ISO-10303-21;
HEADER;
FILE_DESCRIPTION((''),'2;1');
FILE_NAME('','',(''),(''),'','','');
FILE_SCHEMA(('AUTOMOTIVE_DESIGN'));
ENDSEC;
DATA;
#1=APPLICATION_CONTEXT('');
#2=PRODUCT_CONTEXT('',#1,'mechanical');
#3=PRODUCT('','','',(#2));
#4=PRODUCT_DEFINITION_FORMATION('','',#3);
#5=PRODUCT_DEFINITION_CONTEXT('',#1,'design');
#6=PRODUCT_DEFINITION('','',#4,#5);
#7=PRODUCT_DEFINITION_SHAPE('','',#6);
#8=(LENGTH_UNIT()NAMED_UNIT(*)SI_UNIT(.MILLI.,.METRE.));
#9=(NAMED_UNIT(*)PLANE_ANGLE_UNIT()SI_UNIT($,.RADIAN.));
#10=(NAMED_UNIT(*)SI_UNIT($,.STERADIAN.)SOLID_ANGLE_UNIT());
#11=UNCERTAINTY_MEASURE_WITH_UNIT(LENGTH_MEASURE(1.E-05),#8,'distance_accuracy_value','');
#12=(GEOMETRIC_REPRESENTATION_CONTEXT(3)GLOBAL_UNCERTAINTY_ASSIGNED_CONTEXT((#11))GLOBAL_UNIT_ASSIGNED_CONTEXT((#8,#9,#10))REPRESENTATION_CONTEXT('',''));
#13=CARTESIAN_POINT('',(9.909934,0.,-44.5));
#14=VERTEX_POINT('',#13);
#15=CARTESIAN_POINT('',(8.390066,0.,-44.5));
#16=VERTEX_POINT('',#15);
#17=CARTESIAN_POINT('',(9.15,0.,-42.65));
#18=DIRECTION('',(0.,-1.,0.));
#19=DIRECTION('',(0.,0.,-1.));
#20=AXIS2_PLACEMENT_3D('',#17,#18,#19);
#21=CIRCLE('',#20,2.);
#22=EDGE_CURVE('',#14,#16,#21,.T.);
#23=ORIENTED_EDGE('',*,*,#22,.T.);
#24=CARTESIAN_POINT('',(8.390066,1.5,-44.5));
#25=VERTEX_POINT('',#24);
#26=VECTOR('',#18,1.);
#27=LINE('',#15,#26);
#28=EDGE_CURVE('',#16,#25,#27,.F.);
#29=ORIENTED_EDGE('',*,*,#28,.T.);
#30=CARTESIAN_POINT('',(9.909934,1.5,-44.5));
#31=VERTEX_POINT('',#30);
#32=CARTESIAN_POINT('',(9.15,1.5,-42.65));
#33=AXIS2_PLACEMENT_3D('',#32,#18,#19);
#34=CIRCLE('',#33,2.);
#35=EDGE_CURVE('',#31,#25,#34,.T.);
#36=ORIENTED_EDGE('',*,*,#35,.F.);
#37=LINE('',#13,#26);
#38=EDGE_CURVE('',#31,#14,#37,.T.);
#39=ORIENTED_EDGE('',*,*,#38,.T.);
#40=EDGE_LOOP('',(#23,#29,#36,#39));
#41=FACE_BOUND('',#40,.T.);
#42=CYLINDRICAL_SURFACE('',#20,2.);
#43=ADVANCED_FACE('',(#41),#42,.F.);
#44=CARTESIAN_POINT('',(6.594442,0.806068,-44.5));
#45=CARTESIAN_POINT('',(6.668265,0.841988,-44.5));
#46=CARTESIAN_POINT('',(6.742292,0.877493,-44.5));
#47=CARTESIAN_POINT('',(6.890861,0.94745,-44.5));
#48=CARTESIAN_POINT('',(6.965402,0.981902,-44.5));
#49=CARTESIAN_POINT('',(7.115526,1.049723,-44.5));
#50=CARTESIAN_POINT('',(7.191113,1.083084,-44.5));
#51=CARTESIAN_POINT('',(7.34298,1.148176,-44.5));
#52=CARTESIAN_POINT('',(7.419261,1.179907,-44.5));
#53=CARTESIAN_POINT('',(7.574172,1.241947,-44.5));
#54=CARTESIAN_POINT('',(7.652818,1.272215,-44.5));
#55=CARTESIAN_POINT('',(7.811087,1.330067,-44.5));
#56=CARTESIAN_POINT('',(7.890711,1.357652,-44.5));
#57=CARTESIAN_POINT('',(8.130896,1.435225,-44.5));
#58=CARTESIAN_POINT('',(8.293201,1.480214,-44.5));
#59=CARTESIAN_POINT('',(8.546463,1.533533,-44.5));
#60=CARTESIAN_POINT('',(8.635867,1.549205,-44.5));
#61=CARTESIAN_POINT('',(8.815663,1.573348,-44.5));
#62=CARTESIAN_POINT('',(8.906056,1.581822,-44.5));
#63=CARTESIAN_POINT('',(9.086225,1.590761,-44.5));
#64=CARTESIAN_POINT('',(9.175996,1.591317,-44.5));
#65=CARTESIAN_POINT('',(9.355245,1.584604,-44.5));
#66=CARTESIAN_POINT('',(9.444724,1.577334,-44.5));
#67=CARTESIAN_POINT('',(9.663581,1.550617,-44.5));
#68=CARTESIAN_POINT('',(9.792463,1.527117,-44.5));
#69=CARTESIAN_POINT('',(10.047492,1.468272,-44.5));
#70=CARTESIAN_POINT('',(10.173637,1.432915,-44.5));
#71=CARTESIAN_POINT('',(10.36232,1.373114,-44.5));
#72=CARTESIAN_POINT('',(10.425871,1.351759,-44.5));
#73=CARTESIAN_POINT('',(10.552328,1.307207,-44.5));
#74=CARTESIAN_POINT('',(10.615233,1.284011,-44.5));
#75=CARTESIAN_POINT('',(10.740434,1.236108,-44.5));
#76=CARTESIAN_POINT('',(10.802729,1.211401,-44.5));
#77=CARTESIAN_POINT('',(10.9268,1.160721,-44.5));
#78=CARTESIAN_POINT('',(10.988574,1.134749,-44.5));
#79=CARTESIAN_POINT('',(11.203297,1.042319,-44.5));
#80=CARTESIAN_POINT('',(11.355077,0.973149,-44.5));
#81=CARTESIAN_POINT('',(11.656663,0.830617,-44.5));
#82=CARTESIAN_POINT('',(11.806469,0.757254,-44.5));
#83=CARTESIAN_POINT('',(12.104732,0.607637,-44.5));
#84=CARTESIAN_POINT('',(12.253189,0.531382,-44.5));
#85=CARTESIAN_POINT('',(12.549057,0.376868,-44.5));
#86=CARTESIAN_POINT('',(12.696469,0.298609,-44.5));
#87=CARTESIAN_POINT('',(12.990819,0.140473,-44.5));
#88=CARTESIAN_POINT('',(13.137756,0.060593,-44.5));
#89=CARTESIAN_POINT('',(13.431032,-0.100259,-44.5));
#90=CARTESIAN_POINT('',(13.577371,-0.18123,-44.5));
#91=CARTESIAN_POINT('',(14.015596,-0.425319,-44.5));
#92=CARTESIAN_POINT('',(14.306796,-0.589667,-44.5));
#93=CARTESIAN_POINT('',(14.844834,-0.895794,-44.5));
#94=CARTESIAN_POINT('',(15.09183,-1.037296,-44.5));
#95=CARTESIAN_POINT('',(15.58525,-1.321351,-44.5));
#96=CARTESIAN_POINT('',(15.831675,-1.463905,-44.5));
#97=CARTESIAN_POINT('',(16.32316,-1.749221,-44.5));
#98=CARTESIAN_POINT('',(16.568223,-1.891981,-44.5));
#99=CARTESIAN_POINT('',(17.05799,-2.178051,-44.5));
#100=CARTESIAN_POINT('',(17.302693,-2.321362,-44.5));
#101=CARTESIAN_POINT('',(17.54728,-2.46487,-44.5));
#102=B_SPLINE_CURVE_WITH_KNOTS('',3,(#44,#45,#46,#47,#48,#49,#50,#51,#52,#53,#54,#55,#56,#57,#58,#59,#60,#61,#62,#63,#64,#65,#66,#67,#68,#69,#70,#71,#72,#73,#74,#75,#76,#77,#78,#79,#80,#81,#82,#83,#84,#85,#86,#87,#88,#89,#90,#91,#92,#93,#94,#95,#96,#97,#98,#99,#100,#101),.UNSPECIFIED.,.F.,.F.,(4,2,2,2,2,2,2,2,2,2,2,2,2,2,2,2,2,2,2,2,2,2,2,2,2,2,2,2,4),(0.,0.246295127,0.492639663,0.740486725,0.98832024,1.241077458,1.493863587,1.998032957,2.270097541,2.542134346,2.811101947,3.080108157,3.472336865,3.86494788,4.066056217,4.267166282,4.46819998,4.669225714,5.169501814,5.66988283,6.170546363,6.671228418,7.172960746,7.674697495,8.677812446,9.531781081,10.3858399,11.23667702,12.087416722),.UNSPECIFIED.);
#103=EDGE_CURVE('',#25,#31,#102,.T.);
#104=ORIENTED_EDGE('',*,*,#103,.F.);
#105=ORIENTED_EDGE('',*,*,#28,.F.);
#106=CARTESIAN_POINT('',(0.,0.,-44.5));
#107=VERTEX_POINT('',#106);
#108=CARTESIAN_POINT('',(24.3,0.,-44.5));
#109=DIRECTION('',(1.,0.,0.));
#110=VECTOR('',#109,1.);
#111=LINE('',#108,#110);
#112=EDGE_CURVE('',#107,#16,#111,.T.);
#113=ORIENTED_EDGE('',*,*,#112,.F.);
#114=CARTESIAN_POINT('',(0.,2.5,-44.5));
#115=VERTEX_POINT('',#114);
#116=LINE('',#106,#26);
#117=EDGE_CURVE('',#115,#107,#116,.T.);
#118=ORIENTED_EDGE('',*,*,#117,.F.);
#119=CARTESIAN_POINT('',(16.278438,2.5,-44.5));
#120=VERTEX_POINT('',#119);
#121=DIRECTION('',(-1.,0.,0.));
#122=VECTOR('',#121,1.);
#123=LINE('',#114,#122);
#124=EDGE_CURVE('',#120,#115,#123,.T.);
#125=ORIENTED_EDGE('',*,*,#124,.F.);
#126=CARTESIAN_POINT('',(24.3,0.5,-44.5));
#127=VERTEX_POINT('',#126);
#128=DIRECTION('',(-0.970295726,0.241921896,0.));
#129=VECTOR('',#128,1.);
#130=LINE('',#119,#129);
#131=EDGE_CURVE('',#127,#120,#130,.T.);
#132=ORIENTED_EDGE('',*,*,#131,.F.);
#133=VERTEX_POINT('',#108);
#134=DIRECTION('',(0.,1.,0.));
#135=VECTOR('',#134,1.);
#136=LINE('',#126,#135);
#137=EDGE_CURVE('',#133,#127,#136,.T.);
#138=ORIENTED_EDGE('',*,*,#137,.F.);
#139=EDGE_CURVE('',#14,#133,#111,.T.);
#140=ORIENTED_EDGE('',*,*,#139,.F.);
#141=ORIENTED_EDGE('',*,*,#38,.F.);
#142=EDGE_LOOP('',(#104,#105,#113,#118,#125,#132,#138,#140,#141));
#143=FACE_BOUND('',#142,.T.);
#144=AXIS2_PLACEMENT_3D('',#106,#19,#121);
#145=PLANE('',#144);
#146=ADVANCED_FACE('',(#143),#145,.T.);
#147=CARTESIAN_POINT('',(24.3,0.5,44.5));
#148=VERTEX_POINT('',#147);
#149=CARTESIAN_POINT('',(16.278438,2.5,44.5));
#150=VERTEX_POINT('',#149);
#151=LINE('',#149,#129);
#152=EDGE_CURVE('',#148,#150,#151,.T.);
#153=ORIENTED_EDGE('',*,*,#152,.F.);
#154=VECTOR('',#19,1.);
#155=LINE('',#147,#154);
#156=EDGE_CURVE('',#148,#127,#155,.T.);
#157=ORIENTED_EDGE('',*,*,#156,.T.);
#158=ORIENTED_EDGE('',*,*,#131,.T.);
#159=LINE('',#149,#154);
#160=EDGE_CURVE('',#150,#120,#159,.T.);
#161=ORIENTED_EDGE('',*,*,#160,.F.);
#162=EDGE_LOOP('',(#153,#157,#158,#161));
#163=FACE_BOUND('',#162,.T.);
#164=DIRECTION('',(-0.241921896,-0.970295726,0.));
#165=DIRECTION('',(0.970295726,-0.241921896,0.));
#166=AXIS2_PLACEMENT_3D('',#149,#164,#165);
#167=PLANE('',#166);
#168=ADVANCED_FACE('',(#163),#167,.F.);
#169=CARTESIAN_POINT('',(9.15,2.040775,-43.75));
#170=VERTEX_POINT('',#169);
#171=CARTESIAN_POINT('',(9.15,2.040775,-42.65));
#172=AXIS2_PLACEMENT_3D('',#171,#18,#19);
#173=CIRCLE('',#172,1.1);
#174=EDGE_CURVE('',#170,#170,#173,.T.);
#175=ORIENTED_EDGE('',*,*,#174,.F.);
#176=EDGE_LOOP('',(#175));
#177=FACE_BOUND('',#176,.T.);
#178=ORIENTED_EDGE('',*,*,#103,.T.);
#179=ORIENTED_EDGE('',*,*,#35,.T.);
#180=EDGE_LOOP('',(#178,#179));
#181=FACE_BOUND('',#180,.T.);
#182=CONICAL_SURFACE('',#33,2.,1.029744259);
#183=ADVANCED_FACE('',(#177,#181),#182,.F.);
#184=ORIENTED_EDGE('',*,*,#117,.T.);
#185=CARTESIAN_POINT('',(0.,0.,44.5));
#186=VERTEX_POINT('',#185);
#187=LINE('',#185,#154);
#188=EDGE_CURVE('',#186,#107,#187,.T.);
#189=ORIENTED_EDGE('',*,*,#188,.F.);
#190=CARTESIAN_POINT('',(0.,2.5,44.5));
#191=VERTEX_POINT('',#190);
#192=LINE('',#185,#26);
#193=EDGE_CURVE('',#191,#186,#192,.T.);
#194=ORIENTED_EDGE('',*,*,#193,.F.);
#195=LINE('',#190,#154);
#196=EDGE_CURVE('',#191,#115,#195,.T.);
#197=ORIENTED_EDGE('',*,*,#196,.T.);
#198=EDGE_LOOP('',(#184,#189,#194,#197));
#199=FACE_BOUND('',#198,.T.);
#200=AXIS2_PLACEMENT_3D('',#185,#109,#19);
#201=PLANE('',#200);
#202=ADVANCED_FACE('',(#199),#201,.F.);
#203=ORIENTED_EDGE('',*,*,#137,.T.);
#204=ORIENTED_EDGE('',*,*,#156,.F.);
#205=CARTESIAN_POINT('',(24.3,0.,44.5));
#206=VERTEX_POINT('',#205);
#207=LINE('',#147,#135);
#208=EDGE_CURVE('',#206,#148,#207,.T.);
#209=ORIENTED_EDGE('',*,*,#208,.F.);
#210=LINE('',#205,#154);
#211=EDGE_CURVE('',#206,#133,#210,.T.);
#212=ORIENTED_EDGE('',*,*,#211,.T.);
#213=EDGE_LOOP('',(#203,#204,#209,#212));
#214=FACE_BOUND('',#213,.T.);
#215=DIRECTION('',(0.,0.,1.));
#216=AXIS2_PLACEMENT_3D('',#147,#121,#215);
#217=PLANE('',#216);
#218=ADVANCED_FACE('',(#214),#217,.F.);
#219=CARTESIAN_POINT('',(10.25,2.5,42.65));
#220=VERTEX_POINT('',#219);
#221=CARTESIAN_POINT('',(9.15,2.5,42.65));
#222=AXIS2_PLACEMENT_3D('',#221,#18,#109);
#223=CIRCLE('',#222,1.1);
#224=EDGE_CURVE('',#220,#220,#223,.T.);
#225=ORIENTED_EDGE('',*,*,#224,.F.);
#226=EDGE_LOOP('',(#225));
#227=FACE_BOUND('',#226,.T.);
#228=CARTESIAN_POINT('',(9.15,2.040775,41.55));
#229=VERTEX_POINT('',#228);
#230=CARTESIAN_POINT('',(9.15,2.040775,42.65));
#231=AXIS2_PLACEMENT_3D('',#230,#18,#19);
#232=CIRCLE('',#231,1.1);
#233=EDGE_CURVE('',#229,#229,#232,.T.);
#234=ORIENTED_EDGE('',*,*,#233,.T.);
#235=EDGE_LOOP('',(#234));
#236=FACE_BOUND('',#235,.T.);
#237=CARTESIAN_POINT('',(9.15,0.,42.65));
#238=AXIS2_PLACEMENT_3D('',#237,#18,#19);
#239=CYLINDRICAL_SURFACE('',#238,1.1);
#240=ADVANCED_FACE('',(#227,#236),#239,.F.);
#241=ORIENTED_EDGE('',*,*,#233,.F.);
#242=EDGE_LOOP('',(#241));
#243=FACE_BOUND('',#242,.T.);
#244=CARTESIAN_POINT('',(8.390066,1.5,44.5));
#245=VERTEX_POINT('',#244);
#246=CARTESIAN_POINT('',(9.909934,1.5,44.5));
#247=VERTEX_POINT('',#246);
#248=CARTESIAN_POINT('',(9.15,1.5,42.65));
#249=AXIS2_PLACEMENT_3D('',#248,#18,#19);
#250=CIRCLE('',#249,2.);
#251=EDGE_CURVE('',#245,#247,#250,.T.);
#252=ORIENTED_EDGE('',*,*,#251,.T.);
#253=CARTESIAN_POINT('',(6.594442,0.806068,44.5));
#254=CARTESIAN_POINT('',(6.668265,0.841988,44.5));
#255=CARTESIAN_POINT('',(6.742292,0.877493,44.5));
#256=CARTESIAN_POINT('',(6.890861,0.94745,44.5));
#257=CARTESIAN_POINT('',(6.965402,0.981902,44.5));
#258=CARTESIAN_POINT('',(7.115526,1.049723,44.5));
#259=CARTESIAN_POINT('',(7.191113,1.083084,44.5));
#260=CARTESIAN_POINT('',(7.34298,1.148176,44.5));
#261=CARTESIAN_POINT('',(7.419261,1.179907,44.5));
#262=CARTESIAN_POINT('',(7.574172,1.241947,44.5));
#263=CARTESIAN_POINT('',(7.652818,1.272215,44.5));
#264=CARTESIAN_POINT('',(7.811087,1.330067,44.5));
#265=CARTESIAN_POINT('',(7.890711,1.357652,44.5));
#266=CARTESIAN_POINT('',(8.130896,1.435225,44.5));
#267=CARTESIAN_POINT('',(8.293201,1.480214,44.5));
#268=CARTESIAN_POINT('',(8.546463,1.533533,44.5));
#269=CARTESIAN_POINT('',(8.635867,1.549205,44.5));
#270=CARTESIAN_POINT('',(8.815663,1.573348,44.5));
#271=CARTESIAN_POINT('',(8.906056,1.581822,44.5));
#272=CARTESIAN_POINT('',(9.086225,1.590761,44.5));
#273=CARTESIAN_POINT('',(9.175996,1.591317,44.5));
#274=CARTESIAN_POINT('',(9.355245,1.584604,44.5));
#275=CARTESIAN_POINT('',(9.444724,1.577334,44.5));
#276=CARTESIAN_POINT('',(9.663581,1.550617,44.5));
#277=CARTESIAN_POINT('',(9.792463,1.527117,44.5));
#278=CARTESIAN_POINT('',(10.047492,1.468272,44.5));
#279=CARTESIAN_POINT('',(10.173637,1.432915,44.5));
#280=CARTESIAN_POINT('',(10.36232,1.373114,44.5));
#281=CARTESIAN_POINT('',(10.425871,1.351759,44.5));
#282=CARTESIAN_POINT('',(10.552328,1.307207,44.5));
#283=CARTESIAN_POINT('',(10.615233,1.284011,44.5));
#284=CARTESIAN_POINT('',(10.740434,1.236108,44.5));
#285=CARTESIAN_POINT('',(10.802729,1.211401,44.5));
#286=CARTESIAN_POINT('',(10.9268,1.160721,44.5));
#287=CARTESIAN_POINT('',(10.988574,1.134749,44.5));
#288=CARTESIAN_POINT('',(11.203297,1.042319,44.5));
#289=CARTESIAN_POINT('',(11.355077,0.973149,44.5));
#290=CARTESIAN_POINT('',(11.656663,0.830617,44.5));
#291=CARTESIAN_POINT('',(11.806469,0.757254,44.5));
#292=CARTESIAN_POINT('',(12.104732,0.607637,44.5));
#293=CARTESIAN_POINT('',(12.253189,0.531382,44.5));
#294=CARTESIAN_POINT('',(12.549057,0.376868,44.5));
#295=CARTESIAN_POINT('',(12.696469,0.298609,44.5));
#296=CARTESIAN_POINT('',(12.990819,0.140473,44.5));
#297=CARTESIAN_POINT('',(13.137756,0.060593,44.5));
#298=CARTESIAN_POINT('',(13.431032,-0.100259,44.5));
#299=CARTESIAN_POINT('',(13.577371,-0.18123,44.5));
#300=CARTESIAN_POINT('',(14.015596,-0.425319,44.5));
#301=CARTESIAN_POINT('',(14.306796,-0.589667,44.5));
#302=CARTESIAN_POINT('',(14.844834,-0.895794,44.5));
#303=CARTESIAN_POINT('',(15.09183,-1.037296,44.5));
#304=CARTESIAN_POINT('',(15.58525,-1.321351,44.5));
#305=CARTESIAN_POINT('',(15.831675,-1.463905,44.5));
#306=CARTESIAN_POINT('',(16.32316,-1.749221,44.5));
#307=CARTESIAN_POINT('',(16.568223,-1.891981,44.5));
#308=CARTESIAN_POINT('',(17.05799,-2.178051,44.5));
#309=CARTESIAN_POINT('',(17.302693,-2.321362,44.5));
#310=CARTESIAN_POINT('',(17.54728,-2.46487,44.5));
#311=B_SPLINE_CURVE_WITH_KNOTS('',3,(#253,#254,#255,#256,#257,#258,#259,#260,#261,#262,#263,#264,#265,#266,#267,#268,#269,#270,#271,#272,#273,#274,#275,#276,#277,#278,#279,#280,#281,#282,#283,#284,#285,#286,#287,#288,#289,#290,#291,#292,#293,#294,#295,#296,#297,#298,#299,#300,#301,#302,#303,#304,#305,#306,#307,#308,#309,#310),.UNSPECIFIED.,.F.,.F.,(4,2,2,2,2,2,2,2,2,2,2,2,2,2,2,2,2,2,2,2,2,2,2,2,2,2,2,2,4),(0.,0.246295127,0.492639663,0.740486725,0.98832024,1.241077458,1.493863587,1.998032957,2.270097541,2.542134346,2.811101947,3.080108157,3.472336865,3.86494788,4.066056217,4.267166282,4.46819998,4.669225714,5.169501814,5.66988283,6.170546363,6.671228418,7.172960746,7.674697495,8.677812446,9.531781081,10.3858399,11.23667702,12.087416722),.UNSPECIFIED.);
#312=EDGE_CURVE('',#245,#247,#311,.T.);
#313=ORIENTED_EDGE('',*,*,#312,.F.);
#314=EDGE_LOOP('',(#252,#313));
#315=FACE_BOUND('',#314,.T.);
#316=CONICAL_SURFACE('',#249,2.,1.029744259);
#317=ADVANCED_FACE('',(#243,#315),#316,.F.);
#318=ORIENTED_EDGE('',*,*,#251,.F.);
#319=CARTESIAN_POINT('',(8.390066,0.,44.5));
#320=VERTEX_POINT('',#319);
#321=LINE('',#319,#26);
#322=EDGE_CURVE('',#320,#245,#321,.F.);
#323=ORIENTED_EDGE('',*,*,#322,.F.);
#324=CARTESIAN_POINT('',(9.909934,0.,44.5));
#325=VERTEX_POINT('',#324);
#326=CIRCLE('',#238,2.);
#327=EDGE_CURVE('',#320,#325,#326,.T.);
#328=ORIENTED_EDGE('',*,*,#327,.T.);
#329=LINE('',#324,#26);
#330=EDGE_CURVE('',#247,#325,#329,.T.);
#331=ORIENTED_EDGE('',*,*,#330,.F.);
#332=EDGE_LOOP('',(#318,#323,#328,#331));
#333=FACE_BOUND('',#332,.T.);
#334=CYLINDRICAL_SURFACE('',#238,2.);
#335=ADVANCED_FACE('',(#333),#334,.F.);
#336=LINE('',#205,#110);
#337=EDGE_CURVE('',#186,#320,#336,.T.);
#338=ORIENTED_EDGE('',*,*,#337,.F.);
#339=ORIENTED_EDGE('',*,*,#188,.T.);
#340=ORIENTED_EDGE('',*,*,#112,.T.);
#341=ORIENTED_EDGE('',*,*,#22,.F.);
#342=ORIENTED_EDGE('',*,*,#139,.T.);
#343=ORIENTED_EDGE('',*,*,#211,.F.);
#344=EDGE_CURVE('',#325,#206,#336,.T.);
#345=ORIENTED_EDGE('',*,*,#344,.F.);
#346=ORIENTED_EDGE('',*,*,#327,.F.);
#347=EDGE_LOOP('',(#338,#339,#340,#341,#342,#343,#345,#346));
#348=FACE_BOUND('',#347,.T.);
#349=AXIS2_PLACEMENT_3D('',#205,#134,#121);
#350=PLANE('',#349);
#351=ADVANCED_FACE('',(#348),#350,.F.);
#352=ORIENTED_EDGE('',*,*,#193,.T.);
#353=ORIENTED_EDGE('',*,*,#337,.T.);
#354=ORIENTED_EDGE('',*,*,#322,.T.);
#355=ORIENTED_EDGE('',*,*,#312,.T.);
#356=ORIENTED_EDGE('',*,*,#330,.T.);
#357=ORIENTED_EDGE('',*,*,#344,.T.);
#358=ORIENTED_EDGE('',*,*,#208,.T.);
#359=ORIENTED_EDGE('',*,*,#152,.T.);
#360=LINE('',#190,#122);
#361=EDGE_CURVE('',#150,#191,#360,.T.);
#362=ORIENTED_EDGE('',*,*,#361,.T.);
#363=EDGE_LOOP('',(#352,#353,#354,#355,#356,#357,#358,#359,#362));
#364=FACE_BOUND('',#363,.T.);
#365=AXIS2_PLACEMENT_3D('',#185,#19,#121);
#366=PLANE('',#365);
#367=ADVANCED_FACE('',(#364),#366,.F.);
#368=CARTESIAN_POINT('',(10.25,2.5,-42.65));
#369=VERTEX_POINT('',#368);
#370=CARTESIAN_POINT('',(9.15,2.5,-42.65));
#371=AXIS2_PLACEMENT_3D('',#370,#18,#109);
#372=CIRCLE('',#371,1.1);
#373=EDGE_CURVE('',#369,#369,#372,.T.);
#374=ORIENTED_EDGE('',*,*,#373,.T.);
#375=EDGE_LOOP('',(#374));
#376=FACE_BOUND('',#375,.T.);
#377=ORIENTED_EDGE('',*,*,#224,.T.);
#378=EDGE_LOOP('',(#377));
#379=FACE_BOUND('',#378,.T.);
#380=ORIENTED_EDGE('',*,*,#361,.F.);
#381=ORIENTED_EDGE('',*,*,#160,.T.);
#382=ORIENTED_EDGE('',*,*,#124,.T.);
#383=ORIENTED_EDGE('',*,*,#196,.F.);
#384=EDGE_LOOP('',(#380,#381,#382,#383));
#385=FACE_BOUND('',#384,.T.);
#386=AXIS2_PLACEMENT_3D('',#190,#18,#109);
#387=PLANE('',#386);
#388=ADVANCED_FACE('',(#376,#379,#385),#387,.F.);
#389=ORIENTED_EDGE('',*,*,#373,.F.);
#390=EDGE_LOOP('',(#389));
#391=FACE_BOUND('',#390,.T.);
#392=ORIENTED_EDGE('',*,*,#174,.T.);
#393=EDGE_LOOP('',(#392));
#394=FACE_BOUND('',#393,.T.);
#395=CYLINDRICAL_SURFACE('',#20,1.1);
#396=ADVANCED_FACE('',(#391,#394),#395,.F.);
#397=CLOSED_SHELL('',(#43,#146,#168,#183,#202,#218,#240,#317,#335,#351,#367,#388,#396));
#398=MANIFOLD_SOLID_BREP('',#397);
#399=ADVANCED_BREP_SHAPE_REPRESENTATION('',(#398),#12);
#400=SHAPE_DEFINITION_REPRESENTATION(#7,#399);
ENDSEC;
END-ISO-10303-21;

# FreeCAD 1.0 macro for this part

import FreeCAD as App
import Part
import Sketcher
Q = App.Units.Quantity


def add_polygon(sketch, points):
    """Adds a closed chain of lines whose ends are joined by coincident constraints."""
    first, n = sketch.GeometryCount, len(points)
    for a, b in zip(points, points[1:] + points[:1]):
        sketch.addGeometry(Part.LineSegment(App.Vector(*a, 0), App.Vector(*b, 0)), False)
    for i in range(n):
        sketch.addConstraint(Sketcher.Constraint("Coincident", first + i, 2, first + (i + 1) % n, 1))

doc = App.newDocument("Part")
body = doc.addObject("PartDesign::Body", "Body")

# Sketch on XY plane
sketch1 = body.newObject("Sketcher::SketchObject", "Sketch")
sketch1.AttachmentSupport = (doc.getObject("XY_Plane"), [""])
sketch1.MapMode = "FlatFace"
add_polygon(sketch1, [(0, 2.5), (0, 0), (24.3, 0), (24.3, 0.5), (16.3, 2.5)])  # lines 0-4
sketch1.addConstraint([
    Sketcher.Constraint("Vertical", 0),
    Sketcher.Constraint("Horizontal", 1),
    Sketcher.Constraint("Vertical", 2),
    Sketcher.Constraint("Horizontal", 4),
    Sketcher.Constraint("Coincident", 0, 2, -1, 1),
    Sketcher.Constraint("Angle", 3, Q("166 deg")),
    Sketcher.Constraint("DistanceX", 1, 1, 1, 2, Q("24.3 mm")),
    Sketcher.Constraint("DistanceY", 0, 2, 0, 1, Q("2.5 mm")),
    Sketcher.Constraint("DistanceY", 2, 1, 2, 2, Q("0.5 mm")),
])
pad1 = body.newObject("PartDesign::Pad", "Pad")
pad1.Profile = sketch1
pad1.Length = 89
pad1.Midplane = True

# Sketch on YZ plane
sketch2 = body.newObject("Sketcher::SketchObject", "Sketch001")
sketch2.AttachmentSupport = (doc.getObject("YZ_Plane"), [""])
sketch2.MapMode = "FlatFace"
sketch2.AttachmentOffset = App.Placement(App.Vector(0, 0, 9.15), App.Rotation())
add_polygon(sketch2, [(2.5, 42.65), (0, 42.65), (0, 40.65), (1.5, 40.65), (2.04, 41.55), (2.5, 41.55)])  # lines 0-5
sketch2.addGeometry(Part.LineSegment(App.Vector(0, 42.65, 0), App.Vector(2.5, 42.65, 0)), True)  # axis
sketch2.addConstraint([
    Sketcher.Constraint("Horizontal", 0),
    Sketcher.Constraint("Vertical", 1),
    Sketcher.Constraint("Horizontal", 2),
    Sketcher.Constraint("Horizontal", 4),
    Sketcher.Constraint("Vertical", 5),
    Sketcher.Constraint("Horizontal", 6),
    Sketcher.Constraint("Coincident", 6, 1, 0, 2),
    Sketcher.Constraint("PointOnObject", 0, 2, -2),
    Sketcher.Constraint("Vertical", 4, 2, 6, 2),
    Sketcher.Constraint("DistanceY", 1, 2, 1, 1, Q("2 mm")),
    Sketcher.Constraint("Angle", 3, Q("59 deg")),
    Sketcher.Constraint("DistanceX", 0, 2, 0, 1, Q("2.5 mm")),
    Sketcher.Constraint("DistanceX", 2, 1, 2, 2, Q("1.5 mm")),
    Sketcher.Constraint("DistanceY", 5, 1, 5, 2, Q("1.1 mm")),
    Sketcher.Constraint("DistanceY", -1, 1, 0, 2, Q("42.65 mm")),
])
groove = body.newObject("PartDesign::Groove", "Groove")
groove.Profile = sketch2
groove.ReferenceAxis = (sketch2, ["Axis0"])
groove.Angle = 360
doc.recompute()

linearpattern = body.newObject("PartDesign::LinearPattern", "LinearPattern")
linearpattern.Originals = [groove]
linearpattern.Direction = (doc.getObject("Z_Axis"), [""])
linearpattern.Mode = "offset"
linearpattern.Offset = 85.3
linearpattern.Occurrences = 2
linearpattern.Reversed = True
body.Tip = linearpattern

doc.recompute()
